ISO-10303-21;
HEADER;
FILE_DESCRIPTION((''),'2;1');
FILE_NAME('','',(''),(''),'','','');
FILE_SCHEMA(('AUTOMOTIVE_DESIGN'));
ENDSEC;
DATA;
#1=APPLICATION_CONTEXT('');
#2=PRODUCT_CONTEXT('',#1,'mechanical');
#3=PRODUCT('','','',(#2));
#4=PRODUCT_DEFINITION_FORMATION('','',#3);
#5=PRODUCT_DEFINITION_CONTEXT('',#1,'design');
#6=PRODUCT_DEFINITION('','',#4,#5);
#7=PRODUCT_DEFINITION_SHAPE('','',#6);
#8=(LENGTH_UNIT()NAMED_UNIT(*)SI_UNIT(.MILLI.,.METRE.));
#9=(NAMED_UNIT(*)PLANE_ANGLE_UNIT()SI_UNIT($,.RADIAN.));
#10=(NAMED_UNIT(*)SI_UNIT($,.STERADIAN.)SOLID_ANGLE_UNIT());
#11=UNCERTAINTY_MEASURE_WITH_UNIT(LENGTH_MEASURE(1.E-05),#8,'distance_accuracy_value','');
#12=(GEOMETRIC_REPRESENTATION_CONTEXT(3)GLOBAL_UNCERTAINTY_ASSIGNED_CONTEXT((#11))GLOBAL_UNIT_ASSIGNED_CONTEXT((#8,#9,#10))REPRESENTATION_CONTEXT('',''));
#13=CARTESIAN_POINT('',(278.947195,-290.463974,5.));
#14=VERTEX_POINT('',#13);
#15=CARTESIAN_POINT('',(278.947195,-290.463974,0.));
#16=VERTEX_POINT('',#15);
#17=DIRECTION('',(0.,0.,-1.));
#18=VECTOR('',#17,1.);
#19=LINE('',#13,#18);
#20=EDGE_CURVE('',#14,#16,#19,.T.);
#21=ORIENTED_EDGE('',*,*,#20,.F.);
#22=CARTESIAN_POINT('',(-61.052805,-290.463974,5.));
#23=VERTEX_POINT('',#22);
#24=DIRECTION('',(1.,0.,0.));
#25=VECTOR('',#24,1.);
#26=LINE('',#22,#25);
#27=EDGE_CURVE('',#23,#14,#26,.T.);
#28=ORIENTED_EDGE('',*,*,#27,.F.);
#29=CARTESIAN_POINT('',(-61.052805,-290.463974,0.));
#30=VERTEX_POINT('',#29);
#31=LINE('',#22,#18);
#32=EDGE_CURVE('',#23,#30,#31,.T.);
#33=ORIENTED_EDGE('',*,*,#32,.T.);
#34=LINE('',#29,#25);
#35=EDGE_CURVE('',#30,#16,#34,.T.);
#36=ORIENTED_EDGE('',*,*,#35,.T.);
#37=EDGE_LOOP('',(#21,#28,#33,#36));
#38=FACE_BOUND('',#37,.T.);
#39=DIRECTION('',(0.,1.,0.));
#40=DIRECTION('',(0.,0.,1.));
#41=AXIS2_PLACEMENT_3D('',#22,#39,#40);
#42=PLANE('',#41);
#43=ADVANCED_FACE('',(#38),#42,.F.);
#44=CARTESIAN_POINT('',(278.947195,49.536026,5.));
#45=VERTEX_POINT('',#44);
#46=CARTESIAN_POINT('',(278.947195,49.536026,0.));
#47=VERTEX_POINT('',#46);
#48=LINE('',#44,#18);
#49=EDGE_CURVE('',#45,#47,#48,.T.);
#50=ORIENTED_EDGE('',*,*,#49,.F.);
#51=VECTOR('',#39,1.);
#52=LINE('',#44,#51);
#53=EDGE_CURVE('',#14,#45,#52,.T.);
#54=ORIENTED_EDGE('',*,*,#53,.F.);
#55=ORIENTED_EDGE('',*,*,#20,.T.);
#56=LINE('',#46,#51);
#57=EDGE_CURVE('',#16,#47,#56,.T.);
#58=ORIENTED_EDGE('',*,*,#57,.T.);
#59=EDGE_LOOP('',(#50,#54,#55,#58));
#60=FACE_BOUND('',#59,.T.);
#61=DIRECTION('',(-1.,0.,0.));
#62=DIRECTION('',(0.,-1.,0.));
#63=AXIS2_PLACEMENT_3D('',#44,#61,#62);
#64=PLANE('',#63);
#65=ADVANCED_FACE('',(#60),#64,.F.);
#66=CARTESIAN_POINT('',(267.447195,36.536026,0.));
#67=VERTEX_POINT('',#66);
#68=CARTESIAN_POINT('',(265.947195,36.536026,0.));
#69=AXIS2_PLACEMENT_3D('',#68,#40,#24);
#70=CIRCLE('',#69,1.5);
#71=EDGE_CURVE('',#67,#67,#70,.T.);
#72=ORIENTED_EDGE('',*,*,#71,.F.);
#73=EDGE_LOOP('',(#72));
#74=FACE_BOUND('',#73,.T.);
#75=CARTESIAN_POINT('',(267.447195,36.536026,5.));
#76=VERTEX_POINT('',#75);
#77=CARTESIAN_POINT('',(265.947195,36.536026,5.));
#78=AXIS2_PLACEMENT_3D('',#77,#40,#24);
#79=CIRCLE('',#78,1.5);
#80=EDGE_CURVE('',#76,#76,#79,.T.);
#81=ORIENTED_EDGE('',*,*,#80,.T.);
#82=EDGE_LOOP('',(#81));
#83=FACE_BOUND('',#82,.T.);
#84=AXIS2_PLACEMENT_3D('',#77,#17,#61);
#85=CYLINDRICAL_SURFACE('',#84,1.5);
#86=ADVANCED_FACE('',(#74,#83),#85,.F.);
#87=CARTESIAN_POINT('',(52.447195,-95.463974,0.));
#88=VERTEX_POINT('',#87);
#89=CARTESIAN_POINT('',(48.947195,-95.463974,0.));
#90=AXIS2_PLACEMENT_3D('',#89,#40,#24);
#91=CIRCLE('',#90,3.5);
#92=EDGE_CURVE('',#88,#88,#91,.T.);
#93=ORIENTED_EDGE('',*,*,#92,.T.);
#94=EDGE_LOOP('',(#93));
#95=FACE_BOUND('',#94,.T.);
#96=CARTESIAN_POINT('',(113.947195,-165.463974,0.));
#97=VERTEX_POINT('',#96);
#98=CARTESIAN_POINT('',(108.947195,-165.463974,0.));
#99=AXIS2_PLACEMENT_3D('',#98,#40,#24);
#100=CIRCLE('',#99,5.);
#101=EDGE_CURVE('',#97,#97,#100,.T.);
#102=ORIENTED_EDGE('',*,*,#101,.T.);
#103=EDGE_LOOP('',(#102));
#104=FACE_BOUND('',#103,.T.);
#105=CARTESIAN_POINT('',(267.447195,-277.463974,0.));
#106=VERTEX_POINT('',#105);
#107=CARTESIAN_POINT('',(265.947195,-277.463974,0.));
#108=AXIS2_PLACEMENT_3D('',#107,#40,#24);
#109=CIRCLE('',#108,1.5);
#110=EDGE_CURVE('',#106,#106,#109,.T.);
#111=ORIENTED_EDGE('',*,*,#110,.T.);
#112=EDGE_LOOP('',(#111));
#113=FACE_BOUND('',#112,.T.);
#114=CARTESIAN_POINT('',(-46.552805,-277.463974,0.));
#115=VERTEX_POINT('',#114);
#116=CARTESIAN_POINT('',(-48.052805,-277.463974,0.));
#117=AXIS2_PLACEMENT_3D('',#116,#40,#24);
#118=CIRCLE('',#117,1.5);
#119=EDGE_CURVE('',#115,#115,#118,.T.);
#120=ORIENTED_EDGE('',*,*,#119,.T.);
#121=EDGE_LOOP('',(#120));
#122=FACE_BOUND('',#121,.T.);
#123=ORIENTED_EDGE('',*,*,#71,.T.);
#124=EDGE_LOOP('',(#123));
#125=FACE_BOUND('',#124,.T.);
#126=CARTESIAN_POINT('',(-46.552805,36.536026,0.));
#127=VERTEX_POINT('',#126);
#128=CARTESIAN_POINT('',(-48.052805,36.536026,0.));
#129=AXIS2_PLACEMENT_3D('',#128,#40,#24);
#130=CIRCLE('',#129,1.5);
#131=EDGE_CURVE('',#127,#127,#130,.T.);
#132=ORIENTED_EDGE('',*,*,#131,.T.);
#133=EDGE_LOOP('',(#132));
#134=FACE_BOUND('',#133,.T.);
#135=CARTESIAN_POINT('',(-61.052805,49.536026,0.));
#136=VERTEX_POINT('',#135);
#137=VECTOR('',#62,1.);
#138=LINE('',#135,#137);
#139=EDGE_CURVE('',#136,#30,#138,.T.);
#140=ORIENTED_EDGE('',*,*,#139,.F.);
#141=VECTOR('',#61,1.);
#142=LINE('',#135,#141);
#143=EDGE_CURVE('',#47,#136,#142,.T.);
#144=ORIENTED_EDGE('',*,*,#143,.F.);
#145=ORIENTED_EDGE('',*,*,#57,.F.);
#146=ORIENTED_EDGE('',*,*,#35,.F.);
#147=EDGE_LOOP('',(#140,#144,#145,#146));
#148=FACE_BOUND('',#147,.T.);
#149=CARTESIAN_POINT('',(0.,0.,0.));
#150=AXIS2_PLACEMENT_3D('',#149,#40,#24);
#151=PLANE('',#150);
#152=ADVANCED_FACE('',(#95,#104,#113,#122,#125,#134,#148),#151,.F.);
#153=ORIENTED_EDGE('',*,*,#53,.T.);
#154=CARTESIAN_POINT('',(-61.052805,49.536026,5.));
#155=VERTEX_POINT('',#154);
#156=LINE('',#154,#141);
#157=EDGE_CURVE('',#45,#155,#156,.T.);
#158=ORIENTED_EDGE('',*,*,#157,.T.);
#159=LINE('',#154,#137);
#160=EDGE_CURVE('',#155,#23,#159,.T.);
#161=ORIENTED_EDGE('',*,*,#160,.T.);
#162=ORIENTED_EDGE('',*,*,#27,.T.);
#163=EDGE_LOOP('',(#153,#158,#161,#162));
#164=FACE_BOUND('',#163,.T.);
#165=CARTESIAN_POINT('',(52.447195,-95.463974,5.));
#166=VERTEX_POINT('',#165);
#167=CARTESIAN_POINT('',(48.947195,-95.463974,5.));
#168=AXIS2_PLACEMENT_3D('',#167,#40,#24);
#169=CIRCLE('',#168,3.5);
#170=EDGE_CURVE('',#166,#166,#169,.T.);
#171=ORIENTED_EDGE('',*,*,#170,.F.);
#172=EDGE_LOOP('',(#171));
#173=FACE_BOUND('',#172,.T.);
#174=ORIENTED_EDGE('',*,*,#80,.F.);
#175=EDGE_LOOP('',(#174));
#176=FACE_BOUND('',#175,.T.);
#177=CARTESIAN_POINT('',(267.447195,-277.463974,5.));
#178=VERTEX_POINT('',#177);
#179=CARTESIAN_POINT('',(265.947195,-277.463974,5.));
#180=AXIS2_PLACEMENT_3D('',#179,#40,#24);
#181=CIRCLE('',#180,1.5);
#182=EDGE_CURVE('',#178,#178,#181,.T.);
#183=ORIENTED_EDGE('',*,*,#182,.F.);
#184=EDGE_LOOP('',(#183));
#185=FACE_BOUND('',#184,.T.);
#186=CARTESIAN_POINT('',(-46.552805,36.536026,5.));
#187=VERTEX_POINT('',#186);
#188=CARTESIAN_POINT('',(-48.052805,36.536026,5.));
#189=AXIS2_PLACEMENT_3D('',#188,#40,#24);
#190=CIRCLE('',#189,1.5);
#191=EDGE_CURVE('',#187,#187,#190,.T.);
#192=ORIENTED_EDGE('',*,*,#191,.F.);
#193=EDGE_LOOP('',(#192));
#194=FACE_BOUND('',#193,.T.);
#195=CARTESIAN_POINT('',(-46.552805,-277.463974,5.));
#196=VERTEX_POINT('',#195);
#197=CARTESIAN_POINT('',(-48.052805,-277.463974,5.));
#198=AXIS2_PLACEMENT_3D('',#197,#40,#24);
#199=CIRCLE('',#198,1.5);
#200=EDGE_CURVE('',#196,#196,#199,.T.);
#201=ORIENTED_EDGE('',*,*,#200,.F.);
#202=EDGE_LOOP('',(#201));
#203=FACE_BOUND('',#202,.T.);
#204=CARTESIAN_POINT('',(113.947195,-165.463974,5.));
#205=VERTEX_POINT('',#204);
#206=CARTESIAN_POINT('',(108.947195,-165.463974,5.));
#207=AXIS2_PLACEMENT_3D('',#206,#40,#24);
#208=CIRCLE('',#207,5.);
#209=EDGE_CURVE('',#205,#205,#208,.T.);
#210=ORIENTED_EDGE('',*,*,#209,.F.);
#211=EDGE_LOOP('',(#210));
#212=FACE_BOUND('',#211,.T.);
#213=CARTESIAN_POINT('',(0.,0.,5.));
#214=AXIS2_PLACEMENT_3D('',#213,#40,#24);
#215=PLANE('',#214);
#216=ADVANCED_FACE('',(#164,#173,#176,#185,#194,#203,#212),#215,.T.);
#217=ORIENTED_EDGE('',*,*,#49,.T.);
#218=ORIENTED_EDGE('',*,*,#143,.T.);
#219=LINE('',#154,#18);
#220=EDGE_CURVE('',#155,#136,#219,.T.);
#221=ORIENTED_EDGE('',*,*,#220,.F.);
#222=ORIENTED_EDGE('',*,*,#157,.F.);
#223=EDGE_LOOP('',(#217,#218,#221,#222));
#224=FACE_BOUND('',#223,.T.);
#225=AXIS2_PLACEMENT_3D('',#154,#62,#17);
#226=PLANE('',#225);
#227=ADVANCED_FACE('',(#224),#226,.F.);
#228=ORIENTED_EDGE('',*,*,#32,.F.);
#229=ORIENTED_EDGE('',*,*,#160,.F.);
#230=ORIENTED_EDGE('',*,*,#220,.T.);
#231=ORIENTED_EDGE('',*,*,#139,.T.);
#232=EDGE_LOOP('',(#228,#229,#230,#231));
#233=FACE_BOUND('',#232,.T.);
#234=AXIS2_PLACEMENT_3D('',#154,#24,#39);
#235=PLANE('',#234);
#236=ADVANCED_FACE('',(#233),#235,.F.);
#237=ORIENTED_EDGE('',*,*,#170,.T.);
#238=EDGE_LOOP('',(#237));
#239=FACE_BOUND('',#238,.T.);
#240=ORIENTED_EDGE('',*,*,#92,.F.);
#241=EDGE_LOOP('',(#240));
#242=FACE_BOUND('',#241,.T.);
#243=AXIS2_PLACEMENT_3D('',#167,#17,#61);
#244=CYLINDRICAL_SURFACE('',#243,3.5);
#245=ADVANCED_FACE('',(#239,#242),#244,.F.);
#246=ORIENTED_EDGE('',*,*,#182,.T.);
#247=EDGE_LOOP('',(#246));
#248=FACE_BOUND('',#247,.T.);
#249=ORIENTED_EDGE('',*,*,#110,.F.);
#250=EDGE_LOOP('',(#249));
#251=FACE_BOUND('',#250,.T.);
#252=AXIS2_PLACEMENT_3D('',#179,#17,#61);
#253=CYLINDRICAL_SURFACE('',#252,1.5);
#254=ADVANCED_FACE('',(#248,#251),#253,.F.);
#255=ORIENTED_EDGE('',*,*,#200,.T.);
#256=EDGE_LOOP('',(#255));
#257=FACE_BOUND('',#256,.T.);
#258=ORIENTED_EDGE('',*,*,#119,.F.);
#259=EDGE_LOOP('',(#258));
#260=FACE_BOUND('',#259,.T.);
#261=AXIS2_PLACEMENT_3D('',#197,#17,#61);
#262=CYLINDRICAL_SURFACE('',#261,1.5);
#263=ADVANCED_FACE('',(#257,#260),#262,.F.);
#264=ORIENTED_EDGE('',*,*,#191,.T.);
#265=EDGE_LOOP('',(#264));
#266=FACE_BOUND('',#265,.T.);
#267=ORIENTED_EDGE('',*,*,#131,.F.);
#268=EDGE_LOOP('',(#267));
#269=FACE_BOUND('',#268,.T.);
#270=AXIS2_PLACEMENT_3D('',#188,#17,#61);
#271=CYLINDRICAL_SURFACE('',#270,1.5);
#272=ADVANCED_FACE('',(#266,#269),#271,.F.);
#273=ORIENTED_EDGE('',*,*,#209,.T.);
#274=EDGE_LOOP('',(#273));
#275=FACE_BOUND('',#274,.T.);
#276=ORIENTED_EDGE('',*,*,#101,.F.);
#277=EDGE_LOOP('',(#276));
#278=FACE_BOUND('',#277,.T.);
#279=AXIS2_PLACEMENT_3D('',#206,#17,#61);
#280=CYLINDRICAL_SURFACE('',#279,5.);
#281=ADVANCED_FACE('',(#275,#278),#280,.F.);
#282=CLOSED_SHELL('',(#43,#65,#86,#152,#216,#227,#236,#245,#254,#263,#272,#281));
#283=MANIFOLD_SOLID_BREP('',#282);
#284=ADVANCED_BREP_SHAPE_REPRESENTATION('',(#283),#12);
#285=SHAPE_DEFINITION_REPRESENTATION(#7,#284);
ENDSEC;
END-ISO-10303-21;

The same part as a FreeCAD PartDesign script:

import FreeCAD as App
import Part
import Sketcher
from FreeCAD import Vector


def add_polygon(sketch, points):
    """Adds a closed chain of lines whose ends are joined by coincident constraints."""
    first, n = sketch.GeometryCount, len(points)
    for a, b in zip(points, points[1:] + points[:1]):
        sketch.addGeometry(Part.LineSegment(App.Vector(*a, 0), App.Vector(*b, 0)), False)
    for i in range(n):
        sketch.addConstraint(Sketcher.Constraint("Coincident", first + i, 2, first + (i + 1) % n, 1))

doc = App.newDocument("Part")
body = doc.addObject("PartDesign::Body", "Body")

# Sketch on XY plane
sketch1 = doc.addObject("Sketcher::SketchObject", "Sketch")
body.addObject(sketch1)
sketch1.AttachmentSupport = (doc.XY_Plane, [""])
sketch1.MapMode = "FlatFace"
add_polygon(sketch1, [(-61.052805, 49.536026), (-61.052805, -290.463974), (278.947195, -290.463974), (278.947195, 49.536026)])  # lines 0-3
sketch1.addGeometry(Part.Circle(Vector(-48.052805, -277.463974, 0), Vector(0, 0, 1), 1.5), False)  # 4
sketch1.addGeometry(Part.Circle(Vector(265.947195, -277.463974, 0), Vector(0, 0, 1), 1.5), False)  # 5
sketch1.addGeometry(Part.Circle(Vector(108.947195, -165.463974, 0), Vector(0, 0, 1), 5), False)  # 6
sketch1.addGeometry(Part.Circle(Vector(48.947195, -95.463974, 0), Vector(0, 0, 1), 3.5), False)  # 7
sketch1.addGeometry(Part.Circle(Vector(-48.052805, 36.536026, 0), Vector(0, 0, 1), 1.5), False)  # 8
sketch1.addGeometry(Part.Circle(Vector(265.947195, 36.536026, 0), Vector(0, 0, 1), 1.5), False)  # 9
sketch1.addConstraint([
    Sketcher.Constraint("Vertical", 0),
    Sketcher.Constraint("Horizontal", 1),
    Sketcher.Constraint("Vertical", 2),
    Sketcher.Constraint("Horizontal", 3),
    Sketcher.Constraint("Equal", 4, 5),
    Sketcher.Constraint("Equal", 5, 8),
    Sketcher.Constraint("Equal", 8, 9),
    Sketcher.Constraint("Horizontal", 4, 3, 5, 3),
    Sketcher.Constraint("Horizontal", 8, 3, 9, 3),
    Sketcher.Constraint("Vertical", 4, 3, 8, 3),
    Sketcher.Constraint("Vertical", 5, 3, 9, 3),
    Sketcher.Constraint("Equal", 3, 0),
    Sketcher.Constraint("Diameter", 4, 3.0),
    Sketcher.Constraint("Diameter", 6, 10.0),
    Sketcher.Constraint("Diameter", 7, 7.0),
    Sketcher.Constraint("DistanceX", 1, 1, 1, 2, 340.0),
    Sketcher.Constraint("DistanceX", 4, 3, 5, 3, 314.0),
    Sketcher.Constraint("DistanceX", 4, 3, 6, 3, 157.0),
    Sketcher.Constraint("DistanceY", 4, 3, 6, 3, 112.0),
    Sketcher.Constraint("DistanceX", 7, 3, 6, 3, 60.0),
    Sketcher.Constraint("DistanceY", 6, 3, 7, 3, 70.0),
    Sketcher.Constraint("DistanceY", 7, 3, 8, 3, 132.0),
    Sketcher.Constraint("DistanceX", 0, 2, 4, 3, 13.0),
    Sketcher.Constraint("DistanceY", 0, 2, 4, 3, 13.0),
    Sketcher.Constraint("DistanceX", 4, 3, -1, 1, 48.052805),
    Sketcher.Constraint("DistanceY", 4, 3, -1, 1, 277.463974),
])
pad1 = doc.addObject("PartDesign::Pad", "Pad")
body.addObject(pad1)
pad1.Profile = sketch1
pad1.Length = 5

doc.recompute()
